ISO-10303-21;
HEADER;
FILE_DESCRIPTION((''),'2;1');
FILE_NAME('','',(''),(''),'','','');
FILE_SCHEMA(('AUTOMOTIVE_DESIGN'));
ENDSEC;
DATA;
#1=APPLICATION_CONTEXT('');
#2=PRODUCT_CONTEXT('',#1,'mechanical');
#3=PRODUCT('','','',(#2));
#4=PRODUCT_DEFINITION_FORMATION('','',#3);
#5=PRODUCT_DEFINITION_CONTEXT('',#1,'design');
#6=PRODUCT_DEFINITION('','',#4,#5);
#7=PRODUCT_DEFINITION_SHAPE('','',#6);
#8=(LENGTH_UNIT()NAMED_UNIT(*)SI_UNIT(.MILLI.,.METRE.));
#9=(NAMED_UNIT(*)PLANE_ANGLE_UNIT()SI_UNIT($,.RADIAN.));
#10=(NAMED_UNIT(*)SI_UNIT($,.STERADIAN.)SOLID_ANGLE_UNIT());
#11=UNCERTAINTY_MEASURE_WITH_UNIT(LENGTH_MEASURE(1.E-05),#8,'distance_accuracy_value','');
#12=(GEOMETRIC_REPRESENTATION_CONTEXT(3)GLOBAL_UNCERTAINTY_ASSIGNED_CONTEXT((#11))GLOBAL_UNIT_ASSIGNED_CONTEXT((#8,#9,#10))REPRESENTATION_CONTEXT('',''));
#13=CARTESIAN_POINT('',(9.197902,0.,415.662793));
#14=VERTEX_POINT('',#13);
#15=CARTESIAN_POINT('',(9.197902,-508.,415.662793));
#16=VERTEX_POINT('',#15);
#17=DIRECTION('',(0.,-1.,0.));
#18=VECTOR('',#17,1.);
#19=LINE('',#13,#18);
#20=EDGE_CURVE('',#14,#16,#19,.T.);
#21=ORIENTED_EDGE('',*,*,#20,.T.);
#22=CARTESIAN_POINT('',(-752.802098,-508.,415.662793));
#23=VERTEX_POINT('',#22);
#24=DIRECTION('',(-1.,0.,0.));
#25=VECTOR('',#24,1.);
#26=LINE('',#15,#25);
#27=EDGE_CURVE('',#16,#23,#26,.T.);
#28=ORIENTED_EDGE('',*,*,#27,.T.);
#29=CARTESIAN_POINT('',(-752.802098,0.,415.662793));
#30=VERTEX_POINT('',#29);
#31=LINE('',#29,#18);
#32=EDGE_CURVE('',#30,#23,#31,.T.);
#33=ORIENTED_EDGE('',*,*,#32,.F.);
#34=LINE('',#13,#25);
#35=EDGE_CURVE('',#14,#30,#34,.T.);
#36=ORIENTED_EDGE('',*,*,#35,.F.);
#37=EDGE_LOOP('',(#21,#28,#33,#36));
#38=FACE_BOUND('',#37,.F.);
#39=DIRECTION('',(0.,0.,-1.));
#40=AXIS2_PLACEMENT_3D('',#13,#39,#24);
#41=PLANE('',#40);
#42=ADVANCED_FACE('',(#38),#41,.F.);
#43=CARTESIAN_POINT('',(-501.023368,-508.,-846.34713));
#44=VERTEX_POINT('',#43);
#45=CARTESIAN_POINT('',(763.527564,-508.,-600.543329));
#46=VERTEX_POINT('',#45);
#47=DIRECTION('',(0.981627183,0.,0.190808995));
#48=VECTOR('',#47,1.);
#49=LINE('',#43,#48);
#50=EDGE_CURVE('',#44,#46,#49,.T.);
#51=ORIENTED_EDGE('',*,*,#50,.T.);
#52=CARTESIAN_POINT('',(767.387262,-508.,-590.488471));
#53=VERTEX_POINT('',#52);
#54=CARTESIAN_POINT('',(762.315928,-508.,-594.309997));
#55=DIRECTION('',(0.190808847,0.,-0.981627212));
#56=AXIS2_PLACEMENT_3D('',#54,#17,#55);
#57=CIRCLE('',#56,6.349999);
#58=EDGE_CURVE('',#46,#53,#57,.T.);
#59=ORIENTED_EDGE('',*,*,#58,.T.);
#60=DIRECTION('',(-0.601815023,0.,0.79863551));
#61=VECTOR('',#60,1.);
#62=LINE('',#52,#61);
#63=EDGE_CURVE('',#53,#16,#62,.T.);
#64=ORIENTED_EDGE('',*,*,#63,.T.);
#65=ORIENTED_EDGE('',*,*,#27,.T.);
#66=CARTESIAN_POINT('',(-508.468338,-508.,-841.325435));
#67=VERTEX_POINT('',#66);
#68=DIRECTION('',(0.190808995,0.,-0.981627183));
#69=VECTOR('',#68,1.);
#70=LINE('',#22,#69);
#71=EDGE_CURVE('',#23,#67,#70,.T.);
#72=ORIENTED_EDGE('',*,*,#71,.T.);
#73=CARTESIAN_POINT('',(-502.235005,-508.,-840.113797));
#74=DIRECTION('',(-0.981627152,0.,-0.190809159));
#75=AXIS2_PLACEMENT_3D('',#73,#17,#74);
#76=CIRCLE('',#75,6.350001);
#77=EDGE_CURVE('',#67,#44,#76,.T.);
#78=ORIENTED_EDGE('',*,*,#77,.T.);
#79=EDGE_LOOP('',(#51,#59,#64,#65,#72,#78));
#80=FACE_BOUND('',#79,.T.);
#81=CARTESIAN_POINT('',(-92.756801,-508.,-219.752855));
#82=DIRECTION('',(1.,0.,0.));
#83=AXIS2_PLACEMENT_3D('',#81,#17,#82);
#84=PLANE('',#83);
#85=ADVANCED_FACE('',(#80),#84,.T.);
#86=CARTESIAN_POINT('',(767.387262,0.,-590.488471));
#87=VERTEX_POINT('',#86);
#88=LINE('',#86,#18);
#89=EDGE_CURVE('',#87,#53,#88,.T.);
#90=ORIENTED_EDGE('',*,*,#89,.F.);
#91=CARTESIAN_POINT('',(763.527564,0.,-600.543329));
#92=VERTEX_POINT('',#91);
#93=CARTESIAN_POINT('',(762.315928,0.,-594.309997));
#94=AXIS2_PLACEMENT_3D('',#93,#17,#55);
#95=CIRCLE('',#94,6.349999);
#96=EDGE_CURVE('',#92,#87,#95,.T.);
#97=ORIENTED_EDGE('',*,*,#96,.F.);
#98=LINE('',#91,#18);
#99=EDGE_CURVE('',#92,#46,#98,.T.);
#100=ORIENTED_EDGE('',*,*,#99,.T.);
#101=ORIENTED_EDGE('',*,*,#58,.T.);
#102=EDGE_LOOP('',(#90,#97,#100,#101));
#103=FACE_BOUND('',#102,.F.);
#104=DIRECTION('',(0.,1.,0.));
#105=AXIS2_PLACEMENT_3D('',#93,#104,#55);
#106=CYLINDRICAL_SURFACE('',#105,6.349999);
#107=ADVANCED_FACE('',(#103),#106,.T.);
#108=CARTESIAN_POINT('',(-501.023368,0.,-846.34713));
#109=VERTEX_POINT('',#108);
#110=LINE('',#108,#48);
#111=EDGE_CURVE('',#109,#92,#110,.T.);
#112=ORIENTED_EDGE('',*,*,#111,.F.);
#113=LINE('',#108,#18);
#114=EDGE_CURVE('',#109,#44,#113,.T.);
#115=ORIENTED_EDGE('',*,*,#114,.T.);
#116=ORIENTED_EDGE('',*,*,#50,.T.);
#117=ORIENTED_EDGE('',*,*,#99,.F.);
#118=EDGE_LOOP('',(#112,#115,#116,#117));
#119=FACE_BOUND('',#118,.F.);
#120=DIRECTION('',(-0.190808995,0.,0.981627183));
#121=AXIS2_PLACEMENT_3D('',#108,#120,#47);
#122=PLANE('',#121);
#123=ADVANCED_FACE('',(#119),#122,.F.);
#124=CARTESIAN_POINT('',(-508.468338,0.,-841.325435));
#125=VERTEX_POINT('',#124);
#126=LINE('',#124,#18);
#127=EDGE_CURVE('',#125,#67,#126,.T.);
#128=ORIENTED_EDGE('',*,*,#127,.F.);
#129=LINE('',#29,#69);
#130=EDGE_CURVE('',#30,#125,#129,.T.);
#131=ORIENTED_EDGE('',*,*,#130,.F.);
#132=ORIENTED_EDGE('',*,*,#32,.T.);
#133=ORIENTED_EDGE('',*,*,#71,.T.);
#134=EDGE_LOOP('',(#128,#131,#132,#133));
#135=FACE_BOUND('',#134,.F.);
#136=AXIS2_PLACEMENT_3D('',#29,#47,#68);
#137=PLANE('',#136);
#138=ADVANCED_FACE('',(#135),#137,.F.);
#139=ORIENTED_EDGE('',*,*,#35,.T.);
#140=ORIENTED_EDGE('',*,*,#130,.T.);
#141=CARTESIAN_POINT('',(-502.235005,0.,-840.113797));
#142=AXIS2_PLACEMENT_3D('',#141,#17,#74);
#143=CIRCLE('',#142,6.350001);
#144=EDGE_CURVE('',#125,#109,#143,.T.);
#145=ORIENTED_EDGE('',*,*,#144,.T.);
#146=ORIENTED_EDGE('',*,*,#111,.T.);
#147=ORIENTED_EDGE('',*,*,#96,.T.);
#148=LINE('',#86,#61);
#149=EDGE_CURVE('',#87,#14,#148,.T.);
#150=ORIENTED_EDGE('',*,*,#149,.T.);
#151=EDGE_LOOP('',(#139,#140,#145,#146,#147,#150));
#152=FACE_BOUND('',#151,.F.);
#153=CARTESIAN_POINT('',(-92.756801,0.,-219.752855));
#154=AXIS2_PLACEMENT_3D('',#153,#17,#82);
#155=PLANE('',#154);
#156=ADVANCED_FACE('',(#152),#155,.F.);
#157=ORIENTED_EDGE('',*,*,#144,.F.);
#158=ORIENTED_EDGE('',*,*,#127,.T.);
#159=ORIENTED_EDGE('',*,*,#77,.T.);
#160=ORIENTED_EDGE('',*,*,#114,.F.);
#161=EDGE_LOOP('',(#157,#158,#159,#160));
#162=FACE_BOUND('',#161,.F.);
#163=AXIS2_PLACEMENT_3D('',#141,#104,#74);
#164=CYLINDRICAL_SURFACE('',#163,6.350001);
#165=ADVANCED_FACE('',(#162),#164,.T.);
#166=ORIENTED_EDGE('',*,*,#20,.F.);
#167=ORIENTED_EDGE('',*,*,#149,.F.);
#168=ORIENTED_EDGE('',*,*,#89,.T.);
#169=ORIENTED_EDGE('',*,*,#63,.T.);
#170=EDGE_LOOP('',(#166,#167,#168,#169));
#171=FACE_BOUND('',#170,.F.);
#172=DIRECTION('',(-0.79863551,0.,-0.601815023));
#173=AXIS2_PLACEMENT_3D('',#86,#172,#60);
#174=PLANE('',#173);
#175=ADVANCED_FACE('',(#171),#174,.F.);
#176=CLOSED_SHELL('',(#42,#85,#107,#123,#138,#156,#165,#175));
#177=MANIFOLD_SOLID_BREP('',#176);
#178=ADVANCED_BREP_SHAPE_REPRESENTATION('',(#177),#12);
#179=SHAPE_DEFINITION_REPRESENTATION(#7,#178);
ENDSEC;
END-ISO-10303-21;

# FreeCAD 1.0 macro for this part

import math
import FreeCAD as App
import Part
import Sketcher

V = App.Vector
Q = App.Units.Quantity

doc = App.newDocument("Part")
params = doc.addObject("Spreadsheet::Sheet", "Params")
for row, (alias, value) in enumerate([
    ("sketch1_width", "30 in"),
    ("sketch1_radius", "0.25 in"),
    ("pad1_length", "20 in"),
], start=1):
    params.set(f"A{row}", alias)
    params.set(f"B{row}", "=" + value)
    params.setAlias(f"B{row}", alias)

body = doc.addObject("PartDesign::Body", "Body")

# Sketch on XZ plane
sketch1 = body.newObject("Sketcher::SketchObject", "Sketch")
sketch1.AttachmentSupport = (doc.getObject("XZ_Plane"), [""])
sketch1.MapMode = "FlatFace"
sketch1.addGeometry([
    Part.ArcOfCircle(Part.Circle(V(-502.235005, -840.113797, 0), V(0, 0, 1), 6.350001), math.radians(-168.99999), math.radians(-79.000002)),  # 0
    Part.LineSegment(V(-501.023368, -846.34713, 0), V(763.527564, -600.543329, 0)),  # 1
    Part.ArcOfCircle(Part.Circle(V(762.315928, -594.309997, 0), V(0, 0, 1), 6.349999), math.radians(-79.000009), math.radians(37.000012)),  # 2
    Part.LineSegment(V(767.387262, -590.488471, 0), V(9.197902, 415.662793, 0)),  # 3
    Part.LineSegment(V(9.197902, 415.662793, 0), V(-752.802098, 415.662793, 0)),  # 4
    Part.LineSegment(V(-752.802098, 415.662793, 0), V(-508.468338, -841.325435, 0)),  # 5
], False)
sketch1.addConstraint([
    Sketcher.Constraint("Tangent", 0, 2, 1, 1),
    Sketcher.Constraint("Tangent", 1, 2, 2, 1),
    Sketcher.Constraint("Tangent", 2, 2, 3, 1),
    Sketcher.Constraint("Coincident", 3, 2, 4, 1),
    Sketcher.Constraint("Coincident", 4, 2, 5, 1),
    Sketcher.Constraint("Tangent", 5, 2, 0, 1),
    Sketcher.Constraint("Horizontal", 4),
    Sketcher.Constraint("Equal", 0, 2),
    Sketcher.Constraint("Perpendicular", 1, 5),
    Sketcher.Constraint("DistanceX", 4, 2, 4, 1, Q("30 in")),
    Sketcher.Constraint("Radius", 0, Q("0.25 in")),
    Sketcher.Constraint("Angle", 1, Q("11 deg")),
    Sketcher.Constraint("Angle", 3, Q("127 deg")),
    Sketcher.Constraint("DistanceX", -1, 1, 3, 2, Q("9.197902 mm")),
    Sketcher.Constraint("DistanceY", 0, 3, 2, 3, Q("245.8038 mm")),
    Sketcher.Constraint("DistanceY", 0, 2, -1, 1, Q("846.34713 mm")),
])
sketch1.setExpression("Constraints[9]", "Params.sketch1_width")
sketch1.setExpression("Constraints[10]", "Params.sketch1_radius")
pad1 = body.newObject("PartDesign::Pad", "Pad")
pad1.Profile = sketch1
pad1.setExpression("Length", "Params.pad1_length")

doc.recompute()
